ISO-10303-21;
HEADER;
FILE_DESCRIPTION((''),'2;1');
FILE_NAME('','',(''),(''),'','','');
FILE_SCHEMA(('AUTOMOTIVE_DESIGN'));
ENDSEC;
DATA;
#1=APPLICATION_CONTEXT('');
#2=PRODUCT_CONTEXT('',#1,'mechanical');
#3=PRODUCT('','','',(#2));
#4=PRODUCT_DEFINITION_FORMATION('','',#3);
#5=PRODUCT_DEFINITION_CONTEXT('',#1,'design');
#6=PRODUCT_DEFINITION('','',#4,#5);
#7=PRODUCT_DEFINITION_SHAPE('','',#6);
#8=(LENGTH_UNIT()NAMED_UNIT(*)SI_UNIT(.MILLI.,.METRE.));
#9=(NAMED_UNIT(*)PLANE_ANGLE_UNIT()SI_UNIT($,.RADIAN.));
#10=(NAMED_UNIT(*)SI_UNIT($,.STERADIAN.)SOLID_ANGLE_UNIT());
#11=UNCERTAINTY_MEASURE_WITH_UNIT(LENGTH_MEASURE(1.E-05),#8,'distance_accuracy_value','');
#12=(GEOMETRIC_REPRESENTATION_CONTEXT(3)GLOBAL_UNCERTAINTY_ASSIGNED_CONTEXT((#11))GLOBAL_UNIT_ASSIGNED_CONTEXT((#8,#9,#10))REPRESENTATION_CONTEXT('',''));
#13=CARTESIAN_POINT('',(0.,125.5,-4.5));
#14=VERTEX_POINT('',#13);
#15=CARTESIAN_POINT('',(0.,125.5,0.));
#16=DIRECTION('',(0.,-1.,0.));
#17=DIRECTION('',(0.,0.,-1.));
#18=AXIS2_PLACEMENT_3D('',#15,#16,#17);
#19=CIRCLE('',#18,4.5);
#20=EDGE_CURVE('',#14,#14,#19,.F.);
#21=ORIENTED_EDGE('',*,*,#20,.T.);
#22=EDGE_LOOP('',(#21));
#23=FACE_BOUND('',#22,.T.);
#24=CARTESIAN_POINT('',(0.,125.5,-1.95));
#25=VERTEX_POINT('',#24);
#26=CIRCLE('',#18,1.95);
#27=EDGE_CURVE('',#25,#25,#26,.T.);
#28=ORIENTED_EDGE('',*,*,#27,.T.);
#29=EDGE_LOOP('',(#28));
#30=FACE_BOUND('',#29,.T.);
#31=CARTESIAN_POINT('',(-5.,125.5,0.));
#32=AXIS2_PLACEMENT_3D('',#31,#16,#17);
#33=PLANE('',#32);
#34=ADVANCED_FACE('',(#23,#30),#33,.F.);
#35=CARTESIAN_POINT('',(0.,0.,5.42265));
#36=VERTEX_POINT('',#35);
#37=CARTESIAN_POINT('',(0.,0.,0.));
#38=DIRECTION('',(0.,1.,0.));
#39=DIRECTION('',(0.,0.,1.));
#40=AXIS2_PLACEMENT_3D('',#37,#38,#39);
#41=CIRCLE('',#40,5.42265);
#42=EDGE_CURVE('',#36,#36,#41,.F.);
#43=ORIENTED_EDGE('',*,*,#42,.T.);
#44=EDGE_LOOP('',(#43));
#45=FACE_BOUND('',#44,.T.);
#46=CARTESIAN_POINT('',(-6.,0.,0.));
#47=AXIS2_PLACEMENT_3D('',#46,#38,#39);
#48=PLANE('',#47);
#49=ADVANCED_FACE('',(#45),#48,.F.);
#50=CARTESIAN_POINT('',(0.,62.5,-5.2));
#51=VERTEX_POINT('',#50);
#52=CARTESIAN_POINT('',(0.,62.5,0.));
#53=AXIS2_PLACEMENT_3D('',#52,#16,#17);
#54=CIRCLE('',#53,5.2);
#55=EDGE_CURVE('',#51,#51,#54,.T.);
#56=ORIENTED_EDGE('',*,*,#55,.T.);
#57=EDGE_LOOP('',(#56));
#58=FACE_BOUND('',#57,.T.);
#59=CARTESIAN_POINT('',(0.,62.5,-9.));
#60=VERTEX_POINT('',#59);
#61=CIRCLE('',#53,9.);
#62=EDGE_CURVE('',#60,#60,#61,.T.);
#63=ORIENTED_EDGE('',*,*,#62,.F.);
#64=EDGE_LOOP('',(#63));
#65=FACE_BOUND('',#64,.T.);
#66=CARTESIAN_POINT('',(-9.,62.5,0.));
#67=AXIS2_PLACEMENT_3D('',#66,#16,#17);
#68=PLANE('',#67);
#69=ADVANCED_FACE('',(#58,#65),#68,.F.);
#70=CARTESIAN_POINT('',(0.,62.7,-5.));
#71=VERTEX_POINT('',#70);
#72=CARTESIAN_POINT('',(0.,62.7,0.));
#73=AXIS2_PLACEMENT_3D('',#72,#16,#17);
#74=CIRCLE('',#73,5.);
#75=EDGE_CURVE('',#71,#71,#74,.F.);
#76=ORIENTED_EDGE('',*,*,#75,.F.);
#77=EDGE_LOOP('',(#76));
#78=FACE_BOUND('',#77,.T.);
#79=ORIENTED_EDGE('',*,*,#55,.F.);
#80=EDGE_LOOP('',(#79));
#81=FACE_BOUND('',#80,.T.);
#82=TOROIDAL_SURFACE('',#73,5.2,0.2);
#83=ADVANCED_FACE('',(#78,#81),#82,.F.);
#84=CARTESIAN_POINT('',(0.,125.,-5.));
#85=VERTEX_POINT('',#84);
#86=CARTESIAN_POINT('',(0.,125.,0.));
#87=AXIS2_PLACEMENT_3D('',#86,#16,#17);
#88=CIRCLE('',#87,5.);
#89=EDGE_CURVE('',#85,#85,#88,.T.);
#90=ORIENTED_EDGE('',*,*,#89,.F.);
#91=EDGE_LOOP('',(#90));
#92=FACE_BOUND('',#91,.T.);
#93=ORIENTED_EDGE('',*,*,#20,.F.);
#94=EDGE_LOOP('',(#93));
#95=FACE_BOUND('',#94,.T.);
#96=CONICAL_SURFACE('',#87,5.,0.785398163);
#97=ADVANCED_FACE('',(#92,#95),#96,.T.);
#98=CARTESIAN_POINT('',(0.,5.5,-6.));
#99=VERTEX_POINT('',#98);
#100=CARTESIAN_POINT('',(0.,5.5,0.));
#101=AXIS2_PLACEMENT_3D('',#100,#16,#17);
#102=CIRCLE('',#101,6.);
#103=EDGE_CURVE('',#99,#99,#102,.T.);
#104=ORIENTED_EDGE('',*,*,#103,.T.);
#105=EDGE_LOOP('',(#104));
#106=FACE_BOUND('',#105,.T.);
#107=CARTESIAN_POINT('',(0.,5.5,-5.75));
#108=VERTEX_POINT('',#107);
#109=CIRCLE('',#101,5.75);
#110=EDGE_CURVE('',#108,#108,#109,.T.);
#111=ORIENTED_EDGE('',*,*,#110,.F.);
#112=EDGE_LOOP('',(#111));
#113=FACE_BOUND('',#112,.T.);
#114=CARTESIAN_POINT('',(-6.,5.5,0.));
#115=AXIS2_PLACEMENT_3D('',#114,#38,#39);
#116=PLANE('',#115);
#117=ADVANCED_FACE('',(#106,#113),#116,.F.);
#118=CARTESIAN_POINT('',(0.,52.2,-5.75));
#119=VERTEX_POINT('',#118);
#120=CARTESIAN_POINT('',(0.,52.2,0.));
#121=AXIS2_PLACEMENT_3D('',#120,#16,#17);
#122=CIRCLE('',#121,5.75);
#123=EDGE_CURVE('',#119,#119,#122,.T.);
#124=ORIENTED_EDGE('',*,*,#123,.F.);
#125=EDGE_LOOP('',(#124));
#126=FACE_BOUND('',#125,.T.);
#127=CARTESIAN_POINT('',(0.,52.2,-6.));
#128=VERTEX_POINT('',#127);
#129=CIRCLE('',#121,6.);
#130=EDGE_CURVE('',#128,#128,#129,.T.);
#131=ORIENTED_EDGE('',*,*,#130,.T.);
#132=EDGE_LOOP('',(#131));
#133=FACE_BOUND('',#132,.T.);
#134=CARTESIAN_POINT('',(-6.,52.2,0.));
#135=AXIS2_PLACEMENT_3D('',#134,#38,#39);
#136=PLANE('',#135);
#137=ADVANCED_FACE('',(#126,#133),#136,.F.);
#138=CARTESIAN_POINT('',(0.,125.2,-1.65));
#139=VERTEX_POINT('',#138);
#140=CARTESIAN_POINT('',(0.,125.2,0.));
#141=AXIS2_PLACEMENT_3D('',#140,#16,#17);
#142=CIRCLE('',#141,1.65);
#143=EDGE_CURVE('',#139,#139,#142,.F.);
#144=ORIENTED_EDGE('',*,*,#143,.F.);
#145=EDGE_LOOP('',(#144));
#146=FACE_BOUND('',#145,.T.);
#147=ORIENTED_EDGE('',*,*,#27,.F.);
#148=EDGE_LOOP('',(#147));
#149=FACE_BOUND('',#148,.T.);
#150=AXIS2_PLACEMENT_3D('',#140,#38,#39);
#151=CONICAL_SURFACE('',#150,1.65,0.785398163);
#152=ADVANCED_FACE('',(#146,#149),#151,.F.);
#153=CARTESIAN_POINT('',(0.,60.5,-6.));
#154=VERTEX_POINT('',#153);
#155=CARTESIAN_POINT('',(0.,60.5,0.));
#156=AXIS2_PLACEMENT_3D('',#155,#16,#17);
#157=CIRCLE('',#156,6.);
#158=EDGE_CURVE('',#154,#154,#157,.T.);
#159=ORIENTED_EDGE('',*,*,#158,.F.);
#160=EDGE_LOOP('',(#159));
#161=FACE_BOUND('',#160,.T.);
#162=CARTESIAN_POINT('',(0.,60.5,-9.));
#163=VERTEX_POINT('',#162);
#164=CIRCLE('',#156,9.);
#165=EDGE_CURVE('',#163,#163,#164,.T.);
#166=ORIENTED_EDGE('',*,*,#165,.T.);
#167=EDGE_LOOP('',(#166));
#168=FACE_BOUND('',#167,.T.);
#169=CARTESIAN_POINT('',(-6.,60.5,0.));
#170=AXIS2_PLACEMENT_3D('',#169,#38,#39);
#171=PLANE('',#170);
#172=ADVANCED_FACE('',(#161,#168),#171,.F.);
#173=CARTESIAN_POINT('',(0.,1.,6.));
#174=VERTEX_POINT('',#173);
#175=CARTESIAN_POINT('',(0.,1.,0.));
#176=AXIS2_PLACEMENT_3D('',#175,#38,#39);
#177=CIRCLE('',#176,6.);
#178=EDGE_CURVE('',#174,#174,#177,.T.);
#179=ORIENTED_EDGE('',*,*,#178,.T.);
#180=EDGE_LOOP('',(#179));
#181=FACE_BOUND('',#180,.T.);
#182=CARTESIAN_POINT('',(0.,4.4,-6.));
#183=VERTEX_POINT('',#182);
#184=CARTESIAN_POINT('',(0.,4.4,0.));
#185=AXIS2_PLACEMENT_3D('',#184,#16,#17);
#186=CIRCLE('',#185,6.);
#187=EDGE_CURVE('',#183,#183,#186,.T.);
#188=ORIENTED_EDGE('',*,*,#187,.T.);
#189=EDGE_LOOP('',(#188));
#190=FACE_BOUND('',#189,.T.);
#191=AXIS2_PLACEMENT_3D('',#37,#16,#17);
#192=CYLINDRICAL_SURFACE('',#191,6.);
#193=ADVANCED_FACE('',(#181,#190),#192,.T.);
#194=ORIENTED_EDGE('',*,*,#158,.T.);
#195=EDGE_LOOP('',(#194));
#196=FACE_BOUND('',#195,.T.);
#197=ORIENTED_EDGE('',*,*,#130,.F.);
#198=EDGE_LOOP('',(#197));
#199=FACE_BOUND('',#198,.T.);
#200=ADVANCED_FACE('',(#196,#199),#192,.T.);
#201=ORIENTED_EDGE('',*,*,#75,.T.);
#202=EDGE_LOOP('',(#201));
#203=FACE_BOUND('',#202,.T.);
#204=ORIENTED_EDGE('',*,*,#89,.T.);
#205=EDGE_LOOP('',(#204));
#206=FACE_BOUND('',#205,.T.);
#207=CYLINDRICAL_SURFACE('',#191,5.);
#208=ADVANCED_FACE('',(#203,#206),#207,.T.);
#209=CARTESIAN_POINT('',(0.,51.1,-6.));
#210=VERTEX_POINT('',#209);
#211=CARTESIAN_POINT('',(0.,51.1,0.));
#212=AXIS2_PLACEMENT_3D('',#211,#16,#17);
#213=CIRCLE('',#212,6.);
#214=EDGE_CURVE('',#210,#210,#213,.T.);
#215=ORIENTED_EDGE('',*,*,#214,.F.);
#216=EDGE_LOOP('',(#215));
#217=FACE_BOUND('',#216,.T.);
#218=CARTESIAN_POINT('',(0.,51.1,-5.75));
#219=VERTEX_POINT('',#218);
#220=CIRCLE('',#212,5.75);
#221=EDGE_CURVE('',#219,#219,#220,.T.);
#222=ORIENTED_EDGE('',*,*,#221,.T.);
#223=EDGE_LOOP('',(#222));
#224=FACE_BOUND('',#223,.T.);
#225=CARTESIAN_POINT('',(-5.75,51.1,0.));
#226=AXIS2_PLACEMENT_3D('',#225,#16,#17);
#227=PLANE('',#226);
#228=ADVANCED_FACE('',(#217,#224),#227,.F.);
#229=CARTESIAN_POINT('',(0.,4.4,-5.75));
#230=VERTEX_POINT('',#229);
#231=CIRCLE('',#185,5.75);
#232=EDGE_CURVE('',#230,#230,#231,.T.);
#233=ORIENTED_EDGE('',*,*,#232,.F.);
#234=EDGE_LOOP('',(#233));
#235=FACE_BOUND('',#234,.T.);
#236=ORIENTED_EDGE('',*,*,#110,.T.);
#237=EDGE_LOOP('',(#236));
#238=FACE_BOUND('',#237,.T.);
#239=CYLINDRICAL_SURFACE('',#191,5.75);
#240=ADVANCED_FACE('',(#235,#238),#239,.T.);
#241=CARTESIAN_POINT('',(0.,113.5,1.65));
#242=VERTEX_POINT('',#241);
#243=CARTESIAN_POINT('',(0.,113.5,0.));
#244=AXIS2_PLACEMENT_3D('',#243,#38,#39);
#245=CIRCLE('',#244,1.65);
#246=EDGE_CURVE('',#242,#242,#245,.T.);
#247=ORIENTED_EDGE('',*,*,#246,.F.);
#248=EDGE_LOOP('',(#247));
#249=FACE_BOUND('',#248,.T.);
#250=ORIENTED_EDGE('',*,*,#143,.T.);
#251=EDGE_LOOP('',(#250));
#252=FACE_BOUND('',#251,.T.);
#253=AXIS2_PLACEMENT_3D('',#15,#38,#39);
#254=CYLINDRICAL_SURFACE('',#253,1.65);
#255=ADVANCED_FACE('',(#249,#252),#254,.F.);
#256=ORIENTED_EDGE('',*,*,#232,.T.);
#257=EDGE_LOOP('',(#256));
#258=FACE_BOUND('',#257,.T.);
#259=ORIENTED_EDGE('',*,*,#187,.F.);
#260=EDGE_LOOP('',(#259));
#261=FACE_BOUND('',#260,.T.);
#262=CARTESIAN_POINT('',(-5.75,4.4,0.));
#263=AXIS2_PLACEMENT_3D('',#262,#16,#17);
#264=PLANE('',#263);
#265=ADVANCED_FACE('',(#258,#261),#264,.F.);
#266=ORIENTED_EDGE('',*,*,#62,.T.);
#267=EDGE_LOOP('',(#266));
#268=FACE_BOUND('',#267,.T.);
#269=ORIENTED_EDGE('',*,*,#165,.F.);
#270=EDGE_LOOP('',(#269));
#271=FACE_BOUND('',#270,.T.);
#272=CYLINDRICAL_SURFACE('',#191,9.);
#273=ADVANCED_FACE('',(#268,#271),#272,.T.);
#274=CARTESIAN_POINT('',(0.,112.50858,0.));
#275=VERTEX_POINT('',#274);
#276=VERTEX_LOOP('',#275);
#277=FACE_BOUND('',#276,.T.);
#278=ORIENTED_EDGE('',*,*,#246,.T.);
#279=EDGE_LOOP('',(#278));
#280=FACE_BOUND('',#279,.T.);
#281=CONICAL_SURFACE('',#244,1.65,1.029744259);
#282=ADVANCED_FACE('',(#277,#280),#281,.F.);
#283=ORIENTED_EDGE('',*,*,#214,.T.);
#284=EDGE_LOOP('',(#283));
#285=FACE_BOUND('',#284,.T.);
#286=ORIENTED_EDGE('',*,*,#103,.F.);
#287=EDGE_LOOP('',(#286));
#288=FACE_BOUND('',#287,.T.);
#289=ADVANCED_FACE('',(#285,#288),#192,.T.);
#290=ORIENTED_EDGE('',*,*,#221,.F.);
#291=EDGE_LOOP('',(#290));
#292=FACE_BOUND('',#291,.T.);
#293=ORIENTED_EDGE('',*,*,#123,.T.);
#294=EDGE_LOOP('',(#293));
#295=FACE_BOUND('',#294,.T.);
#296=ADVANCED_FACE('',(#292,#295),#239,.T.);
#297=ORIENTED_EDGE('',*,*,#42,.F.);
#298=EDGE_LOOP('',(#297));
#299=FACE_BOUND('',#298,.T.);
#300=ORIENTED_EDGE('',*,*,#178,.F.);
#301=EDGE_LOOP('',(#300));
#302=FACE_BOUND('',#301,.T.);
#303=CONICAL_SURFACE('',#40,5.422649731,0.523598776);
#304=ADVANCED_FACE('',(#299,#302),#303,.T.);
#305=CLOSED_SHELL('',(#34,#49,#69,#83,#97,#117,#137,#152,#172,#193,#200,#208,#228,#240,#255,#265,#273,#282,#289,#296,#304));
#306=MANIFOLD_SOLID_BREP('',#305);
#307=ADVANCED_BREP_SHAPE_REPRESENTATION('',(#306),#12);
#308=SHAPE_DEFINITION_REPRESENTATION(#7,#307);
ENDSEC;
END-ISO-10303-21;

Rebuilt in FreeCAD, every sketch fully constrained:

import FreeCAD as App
import Part
import Sketcher

V = App.Vector
Q = App.Units.Quantity


def edges_at(feature, points):
    """Names of the edges that pass closest to the given points."""
    edges = feature.Shape.Edges
    near = lambda p: min(range(len(edges)), key=lambda i: edges[i].distToShape(Part.Vertex(*p))[0])
    return sorted({f"Edge{near(p) + 1}" for p in points})

doc = App.newDocument("Part")
body = doc.addObject("PartDesign::Body", "Body")

# Sketch on XY plane
sketch1 = body.newObject("Sketcher::SketchObject", "Sketch")
sketch1.AttachmentSupport = (doc.getObject("XY_Plane"), [""])
sketch1.MapMode = "FlatFace"
sketch1.addGeometry(Part.LineSegment(V(-6, 4.4, 0), V(-6, 0, 0)), False)
sketch1.addGeometry(Part.LineSegment(V(-6, 0, 0), V(0, 0, 0)), False)
sketch1.addGeometry(Part.LineSegment(V(0, 0, 0), V(0, 125.5, 0)), False)
sketch1.addGeometry(Part.LineSegment(V(0, 125.5, 0), V(-5, 125.5, 0)), False)
sketch1.addGeometry(Part.LineSegment(V(-5, 125.5, 0), V(-5, 62.5, 0)), False)
sketch1.addGeometry(Part.LineSegment(V(-5, 62.5, 0), V(-9, 62.5, 0)), False)
sketch1.addGeometry(Part.LineSegment(V(-9, 62.5, 0), V(-9, 60.5, 0)), False)
sketch1.addGeometry(Part.LineSegment(V(-9, 60.5, 0), V(-6, 60.5, 0)), False)
sketch1.addGeometry(Part.LineSegment(V(-6, 60.5, 0), V(-6, 52.2, 0)), False)
sketch1.addGeometry(Part.LineSegment(V(-6, 52.2, 0), V(-5.75, 52.2, 0)), False)
sketch1.addGeometry(Part.LineSegment(V(-5.75, 52.2, 0), V(-5.75, 51.1, 0)), False)
sketch1.addGeometry(Part.LineSegment(V(-5.75, 51.1, 0), V(-6, 51.1, 0)), False)
sketch1.addGeometry(Part.LineSegment(V(-6, 51.1, 0), V(-6, 5.5, 0)), False)
sketch1.addGeometry(Part.LineSegment(V(-6, 5.5, 0), V(-5.75, 5.5, 0)), False)
sketch1.addGeometry(Part.LineSegment(V(-5.75, 5.5, 0), V(-5.75, 4.4, 0)), False)
sketch1.addGeometry(Part.LineSegment(V(-5.75, 4.4, 0), V(-6, 4.4, 0)), False)
sketch1.addConstraint(Sketcher.Constraint("Coincident", 0, 2, 1, 1))
sketch1.addConstraint(Sketcher.Constraint("Coincident", 1, 2, 2, 1))
sketch1.addConstraint(Sketcher.Constraint("Coincident", 2, 2, 3, 1))
sketch1.addConstraint(Sketcher.Constraint("Coincident", 3, 2, 4, 1))
sketch1.addConstraint(Sketcher.Constraint("Coincident", 4, 2, 5, 1))
sketch1.addConstraint(Sketcher.Constraint("Coincident", 5, 2, 6, 1))
sketch1.addConstraint(Sketcher.Constraint("Coincident", 6, 2, 7, 1))
sketch1.addConstraint(Sketcher.Constraint("Coincident", 7, 2, 8, 1))
sketch1.addConstraint(Sketcher.Constraint("Coincident", 8, 2, 9, 1))
sketch1.addConstraint(Sketcher.Constraint("Coincident", 9, 2, 10, 1))
sketch1.addConstraint(Sketcher.Constraint("Coincident", 10, 2, 11, 1))
sketch1.addConstraint(Sketcher.Constraint("Coincident", 11, 2, 12, 1))
sketch1.addConstraint(Sketcher.Constraint("Coincident", 12, 2, 13, 1))
sketch1.addConstraint(Sketcher.Constraint("Coincident", 13, 2, 14, 1))
sketch1.addConstraint(Sketcher.Constraint("Coincident", 14, 2, 15, 1))
sketch1.addConstraint(Sketcher.Constraint("Coincident", 15, 2, 0, 1))
sketch1.addConstraint(Sketcher.Constraint("Vertical", 0))
sketch1.addConstraint(Sketcher.Constraint("Horizontal", 1))
sketch1.addConstraint(Sketcher.Constraint("Vertical", 2))
sketch1.addConstraint(Sketcher.Constraint("Horizontal", 3))
sketch1.addConstraint(Sketcher.Constraint("Vertical", 4))
sketch1.addConstraint(Sketcher.Constraint("Horizontal", 5))
sketch1.addConstraint(Sketcher.Constraint("Vertical", 6))
sketch1.addConstraint(Sketcher.Constraint("Horizontal", 7))
sketch1.addConstraint(Sketcher.Constraint("Vertical", 8))
sketch1.addConstraint(Sketcher.Constraint("Horizontal", 9))
sketch1.addConstraint(Sketcher.Constraint("Vertical", 10))
sketch1.addConstraint(Sketcher.Constraint("Horizontal", 11))
sketch1.addConstraint(Sketcher.Constraint("Vertical", 12))
sketch1.addConstraint(Sketcher.Constraint("Horizontal", 13))
sketch1.addConstraint(Sketcher.Constraint("Vertical", 14))
sketch1.addConstraint(Sketcher.Constraint("Horizontal", 15))
sketch1.addConstraint(Sketcher.Constraint("Coincident", 1, 2, -1, 1))
sketch1.addConstraint(Sketcher.Constraint("Vertical", 0, 2, 7, 2))
sketch1.addConstraint(Sketcher.Constraint("Vertical", 8, 2, 11, 2))
sketch1.addConstraint(Sketcher.Constraint("Vertical", 10, 2, 13, 2))
sketch1.addConstraint(Sketcher.Constraint("Equal", 10, 14))
sketch1.addConstraint(Sketcher.Constraint("DistanceX", 1, 1, 1, 2, Q("6 mm")))
sketch1.addConstraint(Sketcher.Constraint("DistanceX", 3, 2, 3, 1, Q("5 mm")))
sketch1.addConstraint(Sketcher.Constraint("DistanceX", 5, 2, 5, 1, Q("4 mm")))
sketch1.addConstraint(Sketcher.Constraint("DistanceY", 4, 2, 4, 1, Q("63 mm")))
sketch1.addConstraint(Sketcher.Constraint("DistanceY", 6, 2, 6, 1, Q("2 mm")))
sketch1.addConstraint(Sketcher.Constraint("DistanceY", 0, 2, 0, 1, Q("4.4 mm")))
sketch1.addConstraint(Sketcher.Constraint("DistanceY", 2, 1, 2, 2, Q("125.5 mm")))
sketch1.addConstraint(Sketcher.Constraint("DistanceY", 8, 2, 8, 1, Q("8.3 mm")))
sketch1.addConstraint(Sketcher.Constraint("DistanceY", 10, 2, 10, 1, Q("1.1 mm")))
sketch1.addConstraint(Sketcher.Constraint("DistanceX", 9, 1, 9, 2, Q("0.25 mm")))
revolution = body.newObject("PartDesign::Revolution", "Revolution")
revolution.Profile = sketch1
revolution.ReferenceAxis = (sketch1, ["V_Axis"])
revolution.Angle = 360
doc.recompute()

chamfer = body.newObject("PartDesign::Chamfer", "Chamfer")
chamfer.Base = (revolution, edges_at(revolution, [(0, 125.5, 5)]))
chamfer.Size = 0.5
doc.recompute()

chamfer2 = body.newObject("PartDesign::Chamfer", "Chamfer001")
chamfer2.Base = (chamfer, edges_at(chamfer, [(0, 0, 6)]))
chamfer2.ChamferType = "Two distances"
chamfer2.Size = 1
chamfer2.Size2 = 0.57735
doc.recompute()

fillet = body.newObject("PartDesign::Fillet", "Fillet")
fillet.Base = (chamfer2, edges_at(chamfer2, [(0, 62.5, 5)]))
fillet.Radius = 0.2

# Sketch on XZ plane
sketch2 = body.newObject("Sketcher::SketchObject", "Sketch001")
sketch2.AttachmentSupport = (doc.getObject("XZ_Plane"), [""])
sketch2.MapMode = "FlatFace"
sketch2.AttachmentOffset = App.Placement(V(0, 0, -125.5), App.Rotation())
sketch2.addGeometry(Part.Circle(V(0, 0, 0), V(0, 0, 1), 1.65), False)
sketch2.addConstraint(Sketcher.Constraint("Coincident", 0, 3, -1, 1))
sketch2.addConstraint(Sketcher.Constraint("Diameter", 0, Q("3.3 mm")))
doc.recompute()
hole = body.newObject("PartDesign::Hole", "Hole")
hole.Profile = sketch2
hole.ThreadType = "None"
hole.Diameter = 3.3
hole.DepthType = "Dimension"
hole.Depth = 12
hole.DrillPoint = "Angled"
hole.DrillPointAngle = 118
hole.Reversed = True
doc.recompute()

chamfer3 = body.newObject("PartDesign::Chamfer", "Chamfer002")
chamfer3.Base = (hole, edges_at(hole, [(1.65, 125.5, 0)]))
chamfer3.Size = 0.3

doc.recompute()
